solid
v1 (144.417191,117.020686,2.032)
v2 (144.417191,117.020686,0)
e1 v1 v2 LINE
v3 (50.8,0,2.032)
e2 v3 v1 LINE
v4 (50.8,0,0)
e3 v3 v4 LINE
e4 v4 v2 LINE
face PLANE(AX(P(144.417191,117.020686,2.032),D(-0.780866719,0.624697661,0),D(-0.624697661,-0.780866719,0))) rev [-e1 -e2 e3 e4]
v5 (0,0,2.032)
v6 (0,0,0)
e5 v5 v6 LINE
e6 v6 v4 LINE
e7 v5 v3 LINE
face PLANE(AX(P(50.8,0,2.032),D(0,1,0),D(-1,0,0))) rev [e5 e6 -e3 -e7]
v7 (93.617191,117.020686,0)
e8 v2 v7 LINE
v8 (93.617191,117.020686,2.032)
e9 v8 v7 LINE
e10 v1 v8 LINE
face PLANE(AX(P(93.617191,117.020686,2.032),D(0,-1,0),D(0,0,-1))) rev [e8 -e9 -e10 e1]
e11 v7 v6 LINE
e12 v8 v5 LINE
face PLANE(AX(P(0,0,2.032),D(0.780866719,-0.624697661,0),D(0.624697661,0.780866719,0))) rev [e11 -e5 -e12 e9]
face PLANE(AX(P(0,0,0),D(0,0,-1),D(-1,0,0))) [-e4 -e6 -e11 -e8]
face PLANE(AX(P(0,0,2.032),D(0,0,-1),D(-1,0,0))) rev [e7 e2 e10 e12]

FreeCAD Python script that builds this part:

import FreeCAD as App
import Part
import Sketcher
Q = App.Units.Quantity

doc = App.newDocument("Part")
body = doc.addObject("PartDesign::Body", "Body")

# Sketch on XY plane
sketch1 = doc.addObject("Sketcher::SketchObject", "Sketch")
body.addObject(sketch1)
sketch1.AttachmentSupport = (doc.XY_Plane, [""])
sketch1.MapMode = "FlatFace"
sketch1.addGeometry([
    Part.LineSegment(App.Vector(94, 117, 0), App.Vector(0, 0, 0)),
    Part.LineSegment(App.Vector(0, 0, 0), App.Vector(51, 0, 0)),
    Part.LineSegment(App.Vector(51, 0, 0), App.Vector(144, 117, 0)),
    Part.LineSegment(App.Vector(144, 117, 0), App.Vector(94, 117, 0)),
], False)
sketch1.addConstraint([
    Sketcher.Constraint("Coincident", 0, 2, 1, 1),
    Sketcher.Constraint("Coincident", 1, 2, 2, 1),
    Sketcher.Constraint("Coincident", 2, 2, 3, 1),
    Sketcher.Constraint("Coincident", 3, 2, 0, 1),
    Sketcher.Constraint("Horizontal", 1),
    Sketcher.Constraint("Horizontal", 3),
    Sketcher.Constraint("Coincident", 0, 2, -1, 1),
    Sketcher.Constraint("Parallel", 0, 2),
    Sketcher.Constraint("DistanceX", 1, 1, 1, 2, Q("2 in")),
    Sketcher.Constraint("Distance", 0, Q("5.9 in")),
    Sketcher.Constraint("Angle", 0, Q("-128.66 deg")),
])
pad1 = doc.addObject("PartDesign::Pad", "Pad")
body.addObject(pad1)
pad1.Profile = sketch1
pad1.Length = Q("0.08 in")

doc.recompute()
